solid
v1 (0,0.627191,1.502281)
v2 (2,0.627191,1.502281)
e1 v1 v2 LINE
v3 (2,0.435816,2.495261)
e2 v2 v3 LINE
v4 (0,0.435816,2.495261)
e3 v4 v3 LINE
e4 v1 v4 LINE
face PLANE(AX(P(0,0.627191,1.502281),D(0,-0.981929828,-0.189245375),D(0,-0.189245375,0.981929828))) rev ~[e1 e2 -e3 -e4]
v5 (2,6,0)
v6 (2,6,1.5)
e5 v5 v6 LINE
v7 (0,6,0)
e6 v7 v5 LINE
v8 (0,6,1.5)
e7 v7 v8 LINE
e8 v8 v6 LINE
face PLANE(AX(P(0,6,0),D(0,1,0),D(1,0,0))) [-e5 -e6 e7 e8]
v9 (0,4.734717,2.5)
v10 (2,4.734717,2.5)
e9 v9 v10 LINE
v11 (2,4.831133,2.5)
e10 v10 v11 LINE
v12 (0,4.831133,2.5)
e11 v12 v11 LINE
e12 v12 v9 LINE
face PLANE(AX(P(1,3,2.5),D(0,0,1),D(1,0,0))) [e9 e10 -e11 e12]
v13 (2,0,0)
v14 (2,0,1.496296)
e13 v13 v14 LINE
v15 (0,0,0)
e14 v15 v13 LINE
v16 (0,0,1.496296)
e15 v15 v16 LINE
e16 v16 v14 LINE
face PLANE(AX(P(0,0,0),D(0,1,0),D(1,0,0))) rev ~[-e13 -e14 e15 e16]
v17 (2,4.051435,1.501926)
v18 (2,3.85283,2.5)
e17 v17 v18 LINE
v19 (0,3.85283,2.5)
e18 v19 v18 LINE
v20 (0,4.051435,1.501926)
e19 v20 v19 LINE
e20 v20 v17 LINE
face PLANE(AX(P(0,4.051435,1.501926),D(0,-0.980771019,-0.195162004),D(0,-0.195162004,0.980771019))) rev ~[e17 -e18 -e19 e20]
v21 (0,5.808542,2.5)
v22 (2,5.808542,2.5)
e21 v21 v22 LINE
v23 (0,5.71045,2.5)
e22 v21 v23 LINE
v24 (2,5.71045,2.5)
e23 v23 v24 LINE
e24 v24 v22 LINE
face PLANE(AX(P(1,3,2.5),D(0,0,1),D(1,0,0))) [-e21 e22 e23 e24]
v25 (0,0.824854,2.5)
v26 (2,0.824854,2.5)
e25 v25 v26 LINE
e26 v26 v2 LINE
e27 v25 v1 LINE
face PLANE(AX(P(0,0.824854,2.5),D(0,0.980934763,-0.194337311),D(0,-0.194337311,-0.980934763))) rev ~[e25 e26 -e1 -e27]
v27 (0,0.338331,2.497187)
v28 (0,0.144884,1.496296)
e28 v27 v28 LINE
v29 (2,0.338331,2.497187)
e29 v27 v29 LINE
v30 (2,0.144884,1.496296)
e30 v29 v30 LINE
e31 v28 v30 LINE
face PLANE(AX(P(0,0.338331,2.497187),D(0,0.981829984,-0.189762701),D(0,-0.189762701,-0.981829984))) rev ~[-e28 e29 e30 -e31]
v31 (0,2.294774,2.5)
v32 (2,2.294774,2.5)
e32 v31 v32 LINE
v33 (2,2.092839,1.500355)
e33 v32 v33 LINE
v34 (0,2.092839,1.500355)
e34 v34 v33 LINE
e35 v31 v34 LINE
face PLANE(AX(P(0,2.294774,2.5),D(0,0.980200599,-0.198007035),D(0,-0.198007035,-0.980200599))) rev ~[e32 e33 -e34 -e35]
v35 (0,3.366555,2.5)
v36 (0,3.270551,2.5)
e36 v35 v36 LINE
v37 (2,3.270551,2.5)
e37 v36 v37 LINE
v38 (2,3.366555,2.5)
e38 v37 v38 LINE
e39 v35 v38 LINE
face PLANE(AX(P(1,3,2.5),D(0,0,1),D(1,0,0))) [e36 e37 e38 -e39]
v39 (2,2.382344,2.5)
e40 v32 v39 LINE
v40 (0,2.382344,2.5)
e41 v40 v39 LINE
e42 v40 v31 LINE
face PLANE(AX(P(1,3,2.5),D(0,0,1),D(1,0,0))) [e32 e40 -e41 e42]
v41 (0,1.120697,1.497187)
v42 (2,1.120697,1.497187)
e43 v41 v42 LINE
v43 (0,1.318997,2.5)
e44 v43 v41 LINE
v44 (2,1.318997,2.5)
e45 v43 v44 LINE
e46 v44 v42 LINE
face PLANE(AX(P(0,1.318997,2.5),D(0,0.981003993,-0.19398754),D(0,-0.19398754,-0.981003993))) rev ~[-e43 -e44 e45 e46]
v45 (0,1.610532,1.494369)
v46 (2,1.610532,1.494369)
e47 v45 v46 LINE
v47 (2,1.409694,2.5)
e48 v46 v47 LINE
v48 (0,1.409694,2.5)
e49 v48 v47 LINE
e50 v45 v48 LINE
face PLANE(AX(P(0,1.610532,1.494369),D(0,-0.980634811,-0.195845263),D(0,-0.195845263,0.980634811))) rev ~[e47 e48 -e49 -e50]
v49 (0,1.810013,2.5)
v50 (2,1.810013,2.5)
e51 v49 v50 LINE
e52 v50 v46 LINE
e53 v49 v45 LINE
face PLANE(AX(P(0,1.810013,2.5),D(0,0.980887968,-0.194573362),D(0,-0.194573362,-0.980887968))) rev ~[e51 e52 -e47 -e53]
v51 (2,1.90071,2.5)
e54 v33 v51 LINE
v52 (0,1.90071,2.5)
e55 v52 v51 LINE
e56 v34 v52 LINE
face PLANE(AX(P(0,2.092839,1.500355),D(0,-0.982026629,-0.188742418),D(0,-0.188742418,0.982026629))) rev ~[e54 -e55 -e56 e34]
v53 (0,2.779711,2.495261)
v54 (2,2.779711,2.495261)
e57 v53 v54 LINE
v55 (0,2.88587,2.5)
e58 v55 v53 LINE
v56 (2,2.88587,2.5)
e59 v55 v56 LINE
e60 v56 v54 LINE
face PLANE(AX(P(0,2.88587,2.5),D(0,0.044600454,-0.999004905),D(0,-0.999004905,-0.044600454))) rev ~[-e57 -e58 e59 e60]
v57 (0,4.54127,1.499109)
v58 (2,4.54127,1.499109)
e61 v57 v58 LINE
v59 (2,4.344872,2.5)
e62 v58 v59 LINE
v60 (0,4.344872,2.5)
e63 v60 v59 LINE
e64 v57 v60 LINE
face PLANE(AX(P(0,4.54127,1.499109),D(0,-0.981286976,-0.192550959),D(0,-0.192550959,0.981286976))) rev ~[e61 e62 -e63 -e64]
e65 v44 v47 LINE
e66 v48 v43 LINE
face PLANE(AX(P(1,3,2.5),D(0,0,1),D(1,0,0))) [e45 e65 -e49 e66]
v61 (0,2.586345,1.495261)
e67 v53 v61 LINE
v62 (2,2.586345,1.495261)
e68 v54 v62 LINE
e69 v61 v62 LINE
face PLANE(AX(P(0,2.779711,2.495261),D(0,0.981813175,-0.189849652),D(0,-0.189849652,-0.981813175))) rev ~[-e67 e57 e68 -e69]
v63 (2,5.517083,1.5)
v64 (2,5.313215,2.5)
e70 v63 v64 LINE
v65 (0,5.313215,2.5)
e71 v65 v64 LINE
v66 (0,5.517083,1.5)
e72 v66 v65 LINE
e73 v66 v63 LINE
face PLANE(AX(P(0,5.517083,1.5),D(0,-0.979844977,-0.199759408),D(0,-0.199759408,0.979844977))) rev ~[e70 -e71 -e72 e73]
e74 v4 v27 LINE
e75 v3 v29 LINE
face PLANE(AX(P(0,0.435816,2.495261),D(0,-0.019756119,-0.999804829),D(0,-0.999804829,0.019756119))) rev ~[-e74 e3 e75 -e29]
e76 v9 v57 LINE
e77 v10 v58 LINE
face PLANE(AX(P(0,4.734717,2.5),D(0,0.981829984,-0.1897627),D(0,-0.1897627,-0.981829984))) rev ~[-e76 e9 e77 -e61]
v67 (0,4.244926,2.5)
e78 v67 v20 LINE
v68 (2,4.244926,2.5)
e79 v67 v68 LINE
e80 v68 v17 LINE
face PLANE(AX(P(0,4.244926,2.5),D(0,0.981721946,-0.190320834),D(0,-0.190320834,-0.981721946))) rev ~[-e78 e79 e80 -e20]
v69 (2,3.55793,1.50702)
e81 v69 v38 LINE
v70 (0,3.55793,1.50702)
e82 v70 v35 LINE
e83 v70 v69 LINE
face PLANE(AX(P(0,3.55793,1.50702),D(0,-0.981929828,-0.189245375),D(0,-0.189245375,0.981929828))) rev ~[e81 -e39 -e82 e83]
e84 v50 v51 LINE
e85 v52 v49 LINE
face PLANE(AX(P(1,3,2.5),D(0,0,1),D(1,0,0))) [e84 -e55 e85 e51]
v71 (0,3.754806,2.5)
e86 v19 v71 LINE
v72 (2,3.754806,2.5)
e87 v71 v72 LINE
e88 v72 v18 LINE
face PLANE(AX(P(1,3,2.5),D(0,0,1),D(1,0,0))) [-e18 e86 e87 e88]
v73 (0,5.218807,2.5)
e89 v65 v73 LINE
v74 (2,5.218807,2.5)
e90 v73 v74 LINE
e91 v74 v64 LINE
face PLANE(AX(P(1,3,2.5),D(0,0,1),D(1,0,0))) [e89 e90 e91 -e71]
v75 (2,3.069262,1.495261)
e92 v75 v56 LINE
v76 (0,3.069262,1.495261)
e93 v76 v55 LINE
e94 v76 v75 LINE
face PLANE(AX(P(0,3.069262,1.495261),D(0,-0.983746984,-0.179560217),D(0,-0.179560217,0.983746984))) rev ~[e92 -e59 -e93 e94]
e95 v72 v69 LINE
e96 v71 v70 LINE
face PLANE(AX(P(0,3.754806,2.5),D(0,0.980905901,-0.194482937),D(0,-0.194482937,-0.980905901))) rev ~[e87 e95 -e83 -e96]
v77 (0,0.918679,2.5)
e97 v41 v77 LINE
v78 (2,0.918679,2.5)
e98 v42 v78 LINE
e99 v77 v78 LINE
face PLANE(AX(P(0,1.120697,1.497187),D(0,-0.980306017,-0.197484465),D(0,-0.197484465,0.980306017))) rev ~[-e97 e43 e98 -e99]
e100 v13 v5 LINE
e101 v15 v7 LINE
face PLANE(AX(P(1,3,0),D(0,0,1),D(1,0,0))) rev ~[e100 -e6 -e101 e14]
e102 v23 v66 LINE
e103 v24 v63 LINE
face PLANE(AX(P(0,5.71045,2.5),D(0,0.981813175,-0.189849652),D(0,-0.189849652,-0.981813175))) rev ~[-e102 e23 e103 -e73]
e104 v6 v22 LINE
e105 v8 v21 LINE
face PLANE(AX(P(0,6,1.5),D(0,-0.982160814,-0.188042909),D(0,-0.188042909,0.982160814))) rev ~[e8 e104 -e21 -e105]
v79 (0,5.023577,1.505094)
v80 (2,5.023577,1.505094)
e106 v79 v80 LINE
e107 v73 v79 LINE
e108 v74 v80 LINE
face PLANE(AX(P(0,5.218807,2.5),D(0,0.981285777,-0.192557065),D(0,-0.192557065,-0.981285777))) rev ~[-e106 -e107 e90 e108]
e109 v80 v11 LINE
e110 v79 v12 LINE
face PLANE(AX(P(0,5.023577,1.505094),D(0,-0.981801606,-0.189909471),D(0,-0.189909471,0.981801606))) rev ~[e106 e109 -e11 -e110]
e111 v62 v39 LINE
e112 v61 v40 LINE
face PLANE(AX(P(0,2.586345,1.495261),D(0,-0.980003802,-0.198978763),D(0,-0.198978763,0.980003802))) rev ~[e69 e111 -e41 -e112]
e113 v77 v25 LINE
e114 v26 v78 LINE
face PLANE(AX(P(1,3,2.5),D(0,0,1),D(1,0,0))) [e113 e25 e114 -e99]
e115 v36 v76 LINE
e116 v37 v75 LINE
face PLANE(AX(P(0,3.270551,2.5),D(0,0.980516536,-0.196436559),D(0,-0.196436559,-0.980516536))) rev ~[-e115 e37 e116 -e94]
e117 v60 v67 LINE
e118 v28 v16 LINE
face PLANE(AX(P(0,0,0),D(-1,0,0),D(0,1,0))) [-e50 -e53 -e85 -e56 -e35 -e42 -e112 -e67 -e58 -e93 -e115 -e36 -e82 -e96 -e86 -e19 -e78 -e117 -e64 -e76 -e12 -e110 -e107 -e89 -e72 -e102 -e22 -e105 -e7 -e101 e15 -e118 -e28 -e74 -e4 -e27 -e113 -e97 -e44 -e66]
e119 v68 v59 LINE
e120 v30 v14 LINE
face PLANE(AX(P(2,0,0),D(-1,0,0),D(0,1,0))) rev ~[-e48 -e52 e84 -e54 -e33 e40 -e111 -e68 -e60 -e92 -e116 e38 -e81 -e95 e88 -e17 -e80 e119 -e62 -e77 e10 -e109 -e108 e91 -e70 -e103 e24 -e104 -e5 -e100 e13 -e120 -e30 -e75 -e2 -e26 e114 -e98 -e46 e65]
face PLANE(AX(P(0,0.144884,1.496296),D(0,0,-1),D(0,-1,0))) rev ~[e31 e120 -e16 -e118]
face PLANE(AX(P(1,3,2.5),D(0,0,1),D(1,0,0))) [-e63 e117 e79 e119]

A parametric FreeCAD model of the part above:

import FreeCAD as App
import Part
import Sketcher

V = App.Vector
Q = App.Units.Quantity

doc = App.newDocument("Part")
body = doc.addObject("PartDesign::Body", "Body")

sketch1 = body.newObject("Sketcher::SketchObject", "Sketch")
sketch1.AttachmentSupport = (doc.getObject("XY_Plane"), [""])
sketch1.MapMode = "FlatFace"
sketch1.addGeometry([
    Part.LineSegment(V(0, 6, 0), V(0, 0, 0)),
    Part.LineSegment(V(0, 0, 0), V(2, 0, 0)),
    Part.LineSegment(V(2, 0, 0), V(2, 6, 0)),
    Part.LineSegment(V(2, 6, 0), V(0, 6, 0)),
], False)
sketch1.addConstraint([
    Sketcher.Constraint("Coincident", 0, 2, 1, 1),
    Sketcher.Constraint("Coincident", 1, 2, 2, 1),
    Sketcher.Constraint("Coincident", 2, 2, 3, 1),
    Sketcher.Constraint("Coincident", 3, 2, 0, 1),
    Sketcher.Constraint("Vertical", 0),
    Sketcher.Constraint("Horizontal", 1),
    Sketcher.Constraint("Vertical", 2),
    Sketcher.Constraint("Horizontal", 3),
    Sketcher.Constraint("Coincident", 0, 2, -1, 1),
    Sketcher.Constraint("DistanceX", 1, 1, 1, 2, Q("2 mm")),
    Sketcher.Constraint("DistanceY", 0, 2, 0, 1, Q("6 mm")),
])
pad1 = body.newObject("PartDesign::Pad", "Pad")
pad1.Profile = sketch1
pad1.Length = 2.5

sketch2 = body.newObject("Sketcher::SketchObject", "Sketch001")
sketch2.AttachmentSupport = (doc.getObject("YZ_Plane"), [""])
sketch2.MapMode = "FlatFace"
sketch2.addGeometry([
    Part.LineSegment(V(5.81, 2.5, 0), V(6, 1.5, 0)),
    Part.LineSegment(V(6, 1.5, 0), V(6, 2.56, 0)),
    Part.LineSegment(V(6, 2.56, 0), V(0, 2.56, 0)),
    Part.LineSegment(V(0, 2.56, 0), V(0, 1.5, 0)),
    Part.LineSegment(V(0, 1.5, 0), V(0.14, 1.5, 0)),
    Part.LineSegment(V(0.14, 1.5, 0), V(0.34, 2.5, 0)),
    Part.LineSegment(V(0.34, 2.5, 0), V(0.44, 2.5, 0)),
    Part.LineSegment(V(0.44, 2.5, 0), V(0.63, 1.5, 0)),
    Part.LineSegment(V(0.63, 1.5, 0), V(0.82, 2.5, 0)),
    Part.LineSegment(V(0.82, 2.5, 0), V(0.92, 2.5, 0)),
    Part.LineSegment(V(0.92, 2.5, 0), V(1.12, 1.5, 0)),
    Part.LineSegment(V(1.12, 1.5, 0), V(1.32, 2.5, 0)),
    Part.LineSegment(V(1.32, 2.5, 0), V(1.41, 2.5, 0)),
    Part.LineSegment(V(1.41, 2.5, 0), V(1.61, 1.49, 0)),
    Part.LineSegment(V(1.61, 1.49, 0), V(1.81, 2.5, 0)),
    Part.LineSegment(V(1.81, 2.5, 0), V(1.9, 2.5, 0)),
    Part.LineSegment(V(1.9, 2.5, 0), V(2.09, 1.5, 0)),
    Part.LineSegment(V(2.09, 1.5, 0), V(2.29, 2.5, 0)),
    Part.LineSegment(V(2.29, 2.5, 0), V(2.38, 2.5, 0)),
    Part.LineSegment(V(2.38, 2.5, 0), V(2.59, 1.5, 0)),
    Part.LineSegment(V(2.59, 1.5, 0), V(2.78, 2.5, 0)),
    Part.LineSegment(V(2.78, 2.5, 0), V(2.89, 2.5, 0)),
    Part.LineSegment(V(2.89, 2.5, 0), V(3.07, 1.5, 0)),
    Part.LineSegment(V(3.07, 1.5, 0), V(3.27, 2.5, 0)),
    Part.LineSegment(V(3.27, 2.5, 0), V(3.37, 2.5, 0)),
    Part.LineSegment(V(3.37, 2.5, 0), V(3.56, 1.51, 0)),
    Part.LineSegment(V(3.56, 1.51, 0), V(3.75, 2.5, 0)),
    Part.LineSegment(V(3.75, 2.5, 0), V(3.85, 2.5, 0)),
    Part.LineSegment(V(3.85, 2.5, 0), V(4.05, 1.5, 0)),
    Part.LineSegment(V(4.05, 1.5, 0), V(4.24, 2.5, 0)),
    Part.LineSegment(V(4.24, 2.5, 0), V(4.34, 2.5, 0)),
    Part.LineSegment(V(4.34, 2.5, 0), V(4.54, 1.5, 0)),
    Part.LineSegment(V(4.54, 1.5, 0), V(4.73, 2.5, 0)),
    Part.LineSegment(V(4.73, 2.5, 0), V(4.83, 2.5, 0)),
    Part.LineSegment(V(4.83, 2.5, 0), V(5.02, 1.51, 0)),
    Part.LineSegment(V(5.02, 1.51, 0), V(5.22, 2.5, 0)),
    Part.LineSegment(V(5.22, 2.5, 0), V(5.31, 2.5, 0)),
    Part.LineSegment(V(5.31, 2.5, 0), V(5.52, 1.5, 0)),
    Part.LineSegment(V(5.52, 1.5, 0), V(5.71, 2.5, 0)),
    Part.LineSegment(V(5.71, 2.5, 0), V(5.81, 2.5, 0)),
], False)
sketch2.addConstraint([
    Sketcher.Constraint("Coincident", 0, 2, 1, 1),
    Sketcher.Constraint("Coincident", 1, 2, 2, 1),
    Sketcher.Constraint("Coincident", 2, 2, 3, 1),
    Sketcher.Constraint("Coincident", 3, 2, 4, 1),
    Sketcher.Constraint("Coincident", 4, 2, 5, 1),
    Sketcher.Constraint("Coincident", 5, 2, 6, 1),
    Sketcher.Constraint("Coincident", 6, 2, 7, 1),
    Sketcher.Constraint("Coincident", 7, 2, 8, 1),
    Sketcher.Constraint("Coincident", 8, 2, 9, 1),
    Sketcher.Constraint("Coincident", 9, 2, 10, 1),
    Sketcher.Constraint("Coincident", 10, 2, 11, 1),
    Sketcher.Constraint("Coincident", 11, 2, 12, 1),
    Sketcher.Constraint("Coincident", 12, 2, 13, 1),
    Sketcher.Constraint("Coincident", 13, 2, 14, 1),
    Sketcher.Constraint("Coincident", 14, 2, 15, 1),
    Sketcher.Constraint("Coincident", 15, 2, 16, 1),
    Sketcher.Constraint("Coincident", 16, 2, 17, 1),
    Sketcher.Constraint("Coincident", 17, 2, 18, 1),
    Sketcher.Constraint("Coincident", 18, 2, 19, 1),
    Sketcher.Constraint("Coincident", 19, 2, 20, 1),
    Sketcher.Constraint("Coincident", 20, 2, 21, 1),
    Sketcher.Constraint("Coincident", 21, 2, 22, 1),
    Sketcher.Constraint("Coincident", 22, 2, 23, 1),
    Sketcher.Constraint("Coincident", 23, 2, 24, 1),
    Sketcher.Constraint("Coincident", 24, 2, 25, 1),
    Sketcher.Constraint("Coincident", 25, 2, 26, 1),
    Sketcher.Constraint("Coincident", 26, 2, 27, 1),
    Sketcher.Constraint("Coincident", 27, 2, 28, 1),
    Sketcher.Constraint("Coincident", 28, 2, 29, 1),
    Sketcher.Constraint("Coincident", 29, 2, 30, 1),
    Sketcher.Constraint("Coincident", 30, 2, 31, 1),
    Sketcher.Constraint("Coincident", 31, 2, 32, 1),
    Sketcher.Constraint("Coincident", 32, 2, 33, 1),
    Sketcher.Constraint("Coincident", 33, 2, 34, 1),
    Sketcher.Constraint("Coincident", 34, 2, 35, 1),
    Sketcher.Constraint("Coincident", 35, 2, 36, 1),
    Sketcher.Constraint("Coincident", 36, 2, 37, 1),
    Sketcher.Constraint("Coincident", 37, 2, 38, 1),
    Sketcher.Constraint("Coincident", 38, 2, 39, 1),
    Sketcher.Constraint("Coincident", 39, 2, 0, 1),
    Sketcher.Constraint("Vertical", 1),
    Sketcher.Constraint("Horizontal", 2),
    Sketcher.Constraint("Vertical", 3),
    Sketcher.Constraint("Horizontal", 4),
    Sketcher.Constraint("Horizontal", 9),
    Sketcher.Constraint("Horizontal", 12),
    Sketcher.Constraint("Horizontal", 15),
    Sketcher.Constraint("Horizontal", 18),
    Sketcher.Constraint("Horizontal", 24),
    Sketcher.Constraint("Horizontal", 27),
    Sketcher.Constraint("Horizontal", 30),
    Sketcher.Constraint("Horizontal", 33),
    Sketcher.Constraint("Horizontal", 36),
    Sketcher.Constraint("Horizontal", 39),
    Sketcher.Constraint("PointOnObject", 2, 2, -2),
    Sketcher.Constraint("Parallel", 7, 25),
    Sketcher.Constraint("Parallel", 5, 32),
    Sketcher.Constraint("Parallel", 20, 38),
    Sketcher.Constraint("Horizontal", 9, 2, 11, 2),
    Sketcher.Constraint("Horizontal", 12, 2, 14, 2),
    Sketcher.Constraint("Horizontal", 15, 2, 17, 2),
    Sketcher.Constraint("Horizontal", 6, 2, 20, 2),
    Sketcher.Constraint("Horizontal", 18, 2, 21, 2),
    Sketcher.Constraint("Horizontal", 19, 2, 22, 2),
    Sketcher.Constraint("Horizontal", 21, 2, 23, 2),
    Sketcher.Constraint("Horizontal", 24, 2, 26, 2),
    Sketcher.Constraint("Horizontal", 27, 2, 29, 2),
    Sketcher.Constraint("Horizontal", 30, 2, 32, 2),
    Sketcher.Constraint("Horizontal", 33, 2, 35, 2),
    Sketcher.Constraint("Horizontal", 0, 2, 37, 2),
    Sketcher.Constraint("Horizontal", 36, 2, 38, 2),
    Sketcher.Constraint("Equal", 12, 15),
    Sketcher.Constraint("Equal", 7, 25),
    Sketcher.Constraint("Equal", 5, 32),
    Sketcher.Constraint("Equal", 20, 38),
    Sketcher.Constraint("DistanceX", 2, 2, 2, 1, Q("6 mm")),
    Sketcher.Constraint("DistanceY", 19, 2, 20, 2, Q("1 mm")),
    Sketcher.Constraint("DistanceY", -1, 1, 0, 2, Q("1.5 mm")),
    Sketcher.Constraint("DistanceX", 18, 2, 19, 2, Q("0.204001 mm")),
    Sketcher.Constraint("DistanceX", 15, 2, 20, 2, Q("0.879001 mm")),
    Sketcher.Constraint("DistanceX", 18, 1, 18, 2, Q("0.08757 mm")),
    Sketcher.Constraint("DistanceX", 39, 1, 39, 2, Q("0.098092 mm")),
    Sketcher.Constraint("DistanceX", 10, 2, 11, 2, Q("0.1983 mm")),
    Sketcher.Constraint("DistanceX", 14, 2, 20, 2, Q("0.969698 mm")),
    Sketcher.Constraint("DistanceX", 25, 2, 27, 2, Q("0.294901 mm")),
    Sketcher.Constraint("DistanceX", 32, 2, 36, 2, Q("0.578498 mm")),
    Sketcher.Constraint("Distance", 8, Q("1.017111 mm")),
    Sketcher.Constraint("Distance", 10, Q("1.022959 mm")),
    Sketcher.Constraint("Distance", 11, Q("1.022231 mm")),
    Sketcher.Constraint("Distance", 13, Q("1.02549 mm")),
    Sketcher.Constraint("Distance", 16, Q("1.017941 mm")),
    Sketcher.Constraint("Distance", 19, Q("1.02524 mm")),
    Sketcher.Constraint("Distance", 22, Q("1.021339 mm")),
    Sketcher.Constraint("Distance", 26, Q("1.012309 mm")),
    Sketcher.Constraint("Distance", 28, Q("1.017642 mm")),
    Sketcher.Constraint("Distance", 31, Q("1.019978 mm")),
    Sketcher.Constraint("Distance", 35, Q("1.01388 mm")),
    Sketcher.Constraint("Distance", 37, Q("1.02057 mm")),
    Sketcher.Constraint("DistanceX", 4, 1, 4, 2, Q("0.144884 mm")),
    Sketcher.Constraint("DistanceX", 9, 1, 9, 2, Q("0.093825 mm")),
    Sketcher.Constraint("DistanceX", 24, 1, 24, 2, Q("0.096004 mm")),
    Sketcher.Constraint("DistanceX", 27, 1, 27, 2, Q("0.098024 mm")),
    Sketcher.Constraint("DistanceX", 30, 1, 30, 2, Q("0.099946 mm")),
    Sketcher.Constraint("DistanceX", 33, 1, 33, 2, Q("0.096416 mm")),
    Sketcher.Constraint("DistanceX", 36, 1, 36, 2, Q("0.094408 mm")),
    Sketcher.Constraint("DistanceY", 1, 1, 1, 2, Q("1.062578 mm")),
    Sketcher.Constraint("DistanceY", 3, 2, 3, 1, Q("1.066282 mm")),
    Sketcher.Constraint("DistanceX", -1, 1, 5, 2, Q("0.338331 mm")),
    Sketcher.Constraint("DistanceX", -1, 1, 7, 2, Q("0.627191 mm")),
    Sketcher.Constraint("DistanceX", -1, 1, 13, 2, Q("1.610532 mm")),
    Sketcher.Constraint("DistanceX", -1, 1, 15, 2, Q("1.90071 mm")),
    Sketcher.Constraint("DistanceX", -1, 1, 16, 2, Q("2.092839 mm")),
    Sketcher.Constraint("DistanceX", -1, 1, 21, 2, Q("2.88587 mm")),
    Sketcher.Constraint("DistanceX", -1, 1, 23, 2, Q("3.270551 mm")),
    Sketcher.Constraint("DistanceX", -1, 1, 25, 2, Q("3.55793 mm")),
    Sketcher.Constraint("DistanceX", -1, 1, 31, 2, Q("4.54127 mm")),
    Sketcher.Constraint("DistanceY", -1, 1, 31, 2, Q("1.499109 mm")),
    Sketcher.Constraint("DistanceX", -1, 1, 38, 2, Q("5.71045 mm")),
    Sketcher.Constraint("DistanceX", 26, 2, 28, 2, Q("0.296629 mm")),
    Sketcher.Constraint("DistanceX", 32, 2, 34, 2, Q("0.288861 mm")),
])
pocket1 = body.newObject("PartDesign::Pocket", "Pocket")
pocket1.Profile = sketch2
pocket1.Type = "ThroughAll"
pocket1.Reversed = True

doc.recompute()
